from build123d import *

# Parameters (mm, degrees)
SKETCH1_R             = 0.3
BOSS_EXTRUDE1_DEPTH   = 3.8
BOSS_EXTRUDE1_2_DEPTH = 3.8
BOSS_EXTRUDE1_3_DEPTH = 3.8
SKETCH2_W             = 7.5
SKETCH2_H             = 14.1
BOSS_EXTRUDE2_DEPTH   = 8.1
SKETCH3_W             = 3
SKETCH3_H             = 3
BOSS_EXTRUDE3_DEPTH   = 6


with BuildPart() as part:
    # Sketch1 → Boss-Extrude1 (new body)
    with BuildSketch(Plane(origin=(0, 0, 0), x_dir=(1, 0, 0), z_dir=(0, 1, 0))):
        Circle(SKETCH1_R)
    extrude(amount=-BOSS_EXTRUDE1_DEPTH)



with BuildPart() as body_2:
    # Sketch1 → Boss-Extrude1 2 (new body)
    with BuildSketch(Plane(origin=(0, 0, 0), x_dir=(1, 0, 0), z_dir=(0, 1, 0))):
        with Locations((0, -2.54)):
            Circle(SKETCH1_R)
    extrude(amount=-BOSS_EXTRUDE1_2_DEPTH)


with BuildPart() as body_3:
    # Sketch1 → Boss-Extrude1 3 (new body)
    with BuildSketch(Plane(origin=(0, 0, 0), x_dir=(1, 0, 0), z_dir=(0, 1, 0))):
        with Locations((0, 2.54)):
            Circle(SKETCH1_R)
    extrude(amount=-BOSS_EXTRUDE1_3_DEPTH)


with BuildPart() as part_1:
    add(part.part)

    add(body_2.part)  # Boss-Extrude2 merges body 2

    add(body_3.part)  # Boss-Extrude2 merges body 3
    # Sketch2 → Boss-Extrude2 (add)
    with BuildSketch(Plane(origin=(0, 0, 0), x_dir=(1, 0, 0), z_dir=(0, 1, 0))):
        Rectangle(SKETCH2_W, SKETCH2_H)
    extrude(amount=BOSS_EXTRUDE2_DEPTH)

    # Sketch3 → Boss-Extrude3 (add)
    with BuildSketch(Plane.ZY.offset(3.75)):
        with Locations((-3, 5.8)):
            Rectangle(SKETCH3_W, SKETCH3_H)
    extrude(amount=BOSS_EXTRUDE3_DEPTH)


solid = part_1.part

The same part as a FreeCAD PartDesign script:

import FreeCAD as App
import Part
import Sketcher

V = App.Vector


def add_polygon(sketch, points):
    """Adds a closed chain of lines whose ends are joined by coincident constraints."""
    first, n = sketch.GeometryCount, len(points)
    for a, b in zip(points, points[1:] + points[:1]):
        sketch.addGeometry(Part.LineSegment(App.Vector(*a, 0), App.Vector(*b, 0)), False)
    for i in range(n):
        sketch.addConstraint(Sketcher.Constraint("Coincident", first + i, 2, first + (i + 1) % n, 1))

doc = App.newDocument("Part")
body = doc.addObject("PartDesign::Body", "Body")

sketch1 = body.newObject("Sketcher::SketchObject", "Sketch")
sketch1.AttachmentSupport = (doc.getObject("XZ_Plane"), [""])
sketch1.MapMode = "FlatFace"
sketch1.addGeometry(Part.Circle(V(0, 0, 0), V(0, 0, 1), 0.3), False)
sketch1.addConstraint(Sketcher.Constraint("Coincident", 0, 3, -1, 1))
sketch1.addConstraint(Sketcher.Constraint("Diameter", 0, 0.6))
pad1 = body.newObject("PartDesign::Pad", "Pad")
pad1.Profile = sketch1
pad1.Length = 3.8
body2 = doc.addObject("PartDesign::Body", "Body001")

sketch2 = body2.newObject("Sketcher::SketchObject", "Sketch001")
sketch2.AttachmentSupport = (doc.getObject("XZ_Plane001"), [""])
sketch2.MapMode = "FlatFace"
sketch2.addGeometry(Part.Circle(V(0, 2.54, 0), V(0, 0, 1), 0.3), False)
sketch2.addConstraint(Sketcher.Constraint("PointOnObject", 0, 3, -2))
sketch2.addConstraint(Sketcher.Constraint("Diameter", 0, 0.6))
sketch2.addConstraint(Sketcher.Constraint("DistanceY", -1, 1, 0, 3, 2.54))
pad2 = body2.newObject("PartDesign::Pad", "Pad001")
pad2.Profile = sketch2
pad2.Length = 3.8
body3 = doc.addObject("PartDesign::Body", "Body002")

sketch3 = body3.newObject("Sketcher::SketchObject", "Sketch002")
sketch3.AttachmentSupport = (doc.getObject("XZ_Plane002"), [""])
sketch3.MapMode = "FlatFace"
sketch3.addGeometry(Part.Circle(V(0, -2.54, 0), V(0, 0, 1), 0.3), False)
sketch3.addConstraint(Sketcher.Constraint("PointOnObject", 0, 3, -2))
sketch3.addConstraint(Sketcher.Constraint("Diameter", 0, 0.6))
sketch3.addConstraint(Sketcher.Constraint("DistanceY", 0, 3, -1, 1, 2.54))
pad3 = body3.newObject("PartDesign::Pad", "Pad002")
pad3.Profile = sketch3
pad3.Length = 3.8
body.AllowCompound = True
doc.recompute()

boolean = body.newObject("PartDesign::Boolean", "Boolean")
boolean.Type = "Fuse"
boolean.addObjects([body2])
doc.recompute()

boolean2 = body.newObject("PartDesign::Boolean", "Boolean001")
boolean2.Type = "Fuse"
boolean2.addObjects([body3])

sketch4 = body.newObject("Sketcher::SketchObject", "Sketch003")
sketch4.AttachmentSupport = (doc.getObject("XZ_Plane"), [""])
sketch4.MapMode = "FlatFace"
add_polygon(sketch4, [(-4, -7), (-4, 7), (4, 7), (4, -7)])
sketch4.addConstraint(Sketcher.Constraint("Vertical", 0))
sketch4.addConstraint(Sketcher.Constraint("Horizontal", 1))
sketch4.addConstraint(Sketcher.Constraint("Vertical", 2))
sketch4.addConstraint(Sketcher.Constraint("Horizontal", 3))
sketch4.addConstraint(Sketcher.Constraint("Symmetric", 0, 2, 2, 2, -1, 1))
sketch4.addConstraint(Sketcher.Constraint("DistanceX", 1, 1, 1, 2, 7.5))
sketch4.addConstraint(Sketcher.Constraint("DistanceY", 0, 1, 0, 2, 14.1))
pad4 = body.newObject("PartDesign::Pad", "Pad003")
pad4.Profile = sketch4
pad4.Length = 8.1
pad4.Reversed = True

sketch5 = body.newObject("Sketcher::SketchObject", "Sketch004")
sketch5.AttachmentSupport = (doc.getObject("YZ_Plane"), [""])
sketch5.MapMode = "FlatFace"
sketch5.AttachmentOffset = App.Placement(V(0, 0, -3.75), App.Rotation())
add_polygon(sketch5, [(7.3, -4.5), (4.3, -4.5), (4.3, -1.5), (7.3, -1.5)])
sketch5.addConstraint(Sketcher.Constraint("Horizontal", 0))
sketch5.addConstraint(Sketcher.Constraint("Vertical", 1))
sketch5.addConstraint(Sketcher.Constraint("Horizontal", 2))
sketch5.addConstraint(Sketcher.Constraint("Vertical", 3))
sketch5.addConstraint(Sketcher.Constraint("Equal", 2, 1))
sketch5.addConstraint(Sketcher.Constraint("DistanceX", 0, 2, 0, 1, 3.0))
sketch5.addConstraint(Sketcher.Constraint("DistanceX", -1, 1, 0, 2, 4.3))
sketch5.addConstraint(Sketcher.Constraint("DistanceY", 0, 2, -1, 1, 4.5))
pad5 = body.newObject("PartDesign::Pad", "Pad004")
pad5.Profile = sketch5
pad5.Length = 6
pad5.Reversed = True

doc.recompute()
